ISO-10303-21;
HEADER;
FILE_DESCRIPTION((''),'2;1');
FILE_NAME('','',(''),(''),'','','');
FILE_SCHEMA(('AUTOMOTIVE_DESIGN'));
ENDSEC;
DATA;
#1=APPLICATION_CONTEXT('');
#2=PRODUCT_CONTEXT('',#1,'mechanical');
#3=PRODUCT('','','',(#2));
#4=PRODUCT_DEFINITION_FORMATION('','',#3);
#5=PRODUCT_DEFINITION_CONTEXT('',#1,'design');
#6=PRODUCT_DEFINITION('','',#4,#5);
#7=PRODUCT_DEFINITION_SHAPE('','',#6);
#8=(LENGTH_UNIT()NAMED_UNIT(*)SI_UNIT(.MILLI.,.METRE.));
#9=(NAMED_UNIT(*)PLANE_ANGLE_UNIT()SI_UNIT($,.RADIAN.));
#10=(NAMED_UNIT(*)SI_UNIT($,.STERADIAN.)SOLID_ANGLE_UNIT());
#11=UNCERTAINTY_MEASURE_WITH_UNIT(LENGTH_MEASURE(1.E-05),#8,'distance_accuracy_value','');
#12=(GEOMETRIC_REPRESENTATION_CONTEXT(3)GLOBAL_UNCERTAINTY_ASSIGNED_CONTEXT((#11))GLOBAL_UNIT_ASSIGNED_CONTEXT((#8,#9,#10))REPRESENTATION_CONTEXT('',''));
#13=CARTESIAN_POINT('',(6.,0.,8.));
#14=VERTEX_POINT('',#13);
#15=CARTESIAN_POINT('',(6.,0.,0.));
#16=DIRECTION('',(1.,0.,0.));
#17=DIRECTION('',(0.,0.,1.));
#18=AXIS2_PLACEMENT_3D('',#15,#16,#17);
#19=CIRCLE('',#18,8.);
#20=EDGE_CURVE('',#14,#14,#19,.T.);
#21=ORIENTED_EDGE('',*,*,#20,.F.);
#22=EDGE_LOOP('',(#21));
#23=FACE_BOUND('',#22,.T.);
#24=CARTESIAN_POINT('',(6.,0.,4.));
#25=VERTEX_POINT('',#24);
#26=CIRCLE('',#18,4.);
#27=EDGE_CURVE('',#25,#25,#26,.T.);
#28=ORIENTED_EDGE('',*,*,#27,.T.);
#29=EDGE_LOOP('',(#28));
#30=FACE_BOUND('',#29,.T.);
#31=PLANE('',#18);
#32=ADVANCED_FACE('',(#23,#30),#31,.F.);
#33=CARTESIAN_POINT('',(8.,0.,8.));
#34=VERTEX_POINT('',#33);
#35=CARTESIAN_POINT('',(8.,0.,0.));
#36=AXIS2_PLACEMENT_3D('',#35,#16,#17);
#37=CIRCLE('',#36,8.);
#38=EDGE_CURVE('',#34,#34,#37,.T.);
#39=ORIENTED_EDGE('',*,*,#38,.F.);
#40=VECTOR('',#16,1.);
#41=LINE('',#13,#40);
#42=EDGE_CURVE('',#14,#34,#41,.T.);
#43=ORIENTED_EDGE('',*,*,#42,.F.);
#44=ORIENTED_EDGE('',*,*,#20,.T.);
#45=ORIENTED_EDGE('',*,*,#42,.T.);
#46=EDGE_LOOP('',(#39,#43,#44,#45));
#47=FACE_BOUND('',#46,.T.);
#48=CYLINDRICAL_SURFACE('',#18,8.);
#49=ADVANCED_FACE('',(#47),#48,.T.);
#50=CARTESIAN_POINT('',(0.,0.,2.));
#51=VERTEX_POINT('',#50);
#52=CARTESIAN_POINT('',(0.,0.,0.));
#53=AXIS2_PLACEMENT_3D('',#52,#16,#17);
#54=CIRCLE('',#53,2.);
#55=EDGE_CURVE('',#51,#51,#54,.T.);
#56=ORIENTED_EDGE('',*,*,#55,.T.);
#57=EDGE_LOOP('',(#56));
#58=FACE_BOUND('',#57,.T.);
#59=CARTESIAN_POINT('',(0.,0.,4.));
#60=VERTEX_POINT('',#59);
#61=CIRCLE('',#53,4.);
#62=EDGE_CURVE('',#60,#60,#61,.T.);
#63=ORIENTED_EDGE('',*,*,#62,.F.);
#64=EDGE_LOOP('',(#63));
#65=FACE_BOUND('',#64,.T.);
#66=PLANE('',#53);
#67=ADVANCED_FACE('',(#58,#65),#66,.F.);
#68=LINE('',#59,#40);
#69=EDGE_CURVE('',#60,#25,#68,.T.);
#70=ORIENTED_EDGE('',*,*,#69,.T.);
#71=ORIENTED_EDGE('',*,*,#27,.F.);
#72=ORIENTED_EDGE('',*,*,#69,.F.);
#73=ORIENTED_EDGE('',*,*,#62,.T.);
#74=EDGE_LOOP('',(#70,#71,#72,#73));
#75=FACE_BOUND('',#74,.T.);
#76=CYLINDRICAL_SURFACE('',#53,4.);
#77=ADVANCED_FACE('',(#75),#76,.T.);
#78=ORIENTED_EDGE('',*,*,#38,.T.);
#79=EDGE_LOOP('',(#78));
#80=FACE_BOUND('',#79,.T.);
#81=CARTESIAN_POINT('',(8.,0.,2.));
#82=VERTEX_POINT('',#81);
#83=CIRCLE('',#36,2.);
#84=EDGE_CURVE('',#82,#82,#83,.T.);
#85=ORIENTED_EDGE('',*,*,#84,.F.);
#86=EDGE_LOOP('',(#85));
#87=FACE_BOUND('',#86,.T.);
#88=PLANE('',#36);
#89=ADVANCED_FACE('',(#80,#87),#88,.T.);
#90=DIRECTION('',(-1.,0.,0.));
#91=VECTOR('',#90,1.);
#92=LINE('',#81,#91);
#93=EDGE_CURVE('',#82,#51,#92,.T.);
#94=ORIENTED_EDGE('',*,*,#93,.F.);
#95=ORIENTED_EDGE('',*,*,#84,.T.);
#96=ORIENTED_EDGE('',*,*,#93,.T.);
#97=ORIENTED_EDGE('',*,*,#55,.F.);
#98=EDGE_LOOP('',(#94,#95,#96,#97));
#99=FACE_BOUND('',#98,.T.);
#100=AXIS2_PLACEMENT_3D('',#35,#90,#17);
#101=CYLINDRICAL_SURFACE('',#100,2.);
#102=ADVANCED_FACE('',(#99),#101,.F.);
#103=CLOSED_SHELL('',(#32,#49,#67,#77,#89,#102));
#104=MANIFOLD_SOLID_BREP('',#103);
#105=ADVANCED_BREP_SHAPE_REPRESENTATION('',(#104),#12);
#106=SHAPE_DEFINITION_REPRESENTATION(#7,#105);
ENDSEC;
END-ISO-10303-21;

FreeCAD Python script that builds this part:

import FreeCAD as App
import Part
import Sketcher
from FreeCAD import Vector


def add_polygon(sketch, points):
    """Adds a closed chain of lines whose ends are joined by coincident constraints."""
    first, n = sketch.GeometryCount, len(points)
    for a, b in zip(points, points[1:] + points[:1]):
        sketch.addGeometry(Part.LineSegment(App.Vector(*a, 0), App.Vector(*b, 0)), False)
    for i in range(n):
        sketch.addConstraint(Sketcher.Constraint("Coincident", first + i, 2, first + (i + 1) % n, 1))

doc = App.newDocument("Part")
params = doc.addObject("Spreadsheet::Sheet", "Params")
for row, (alias, value) in enumerate([
    ("sketch1_width", "8 mm"),
    ("sketch1_width2", "2 mm"),
    ("revolution_angle", "360 deg"),
], start=1):
    params.set(f"A{row}", alias)
    params.set(f"B{row}", "=" + value)
    params.setAlias(f"B{row}", alias)

body = doc.addObject("PartDesign::Body", "Body")

# Sketch on XZ plane
sketch1 = body.newObject("Sketcher::SketchObject", "Sketch")
sketch1.AttachmentSupport = (doc.getObject("XZ_Plane"), [""])
sketch1.MapMode = "FlatFace"
add_polygon(sketch1, [(0, -4), (0, -2), (8, -2), (8, -8), (6, -8), (6, -4)])  # lines 0-5
sketch1.addConstraint(Sketcher.Constraint("Vertical", 0))
sketch1.addConstraint(Sketcher.Constraint("Horizontal", 1))
sketch1.addConstraint(Sketcher.Constraint("Vertical", 2))
sketch1.addConstraint(Sketcher.Constraint("Horizontal", 3))
sketch1.addConstraint(Sketcher.Constraint("Vertical", 4))
sketch1.addConstraint(Sketcher.Constraint("Horizontal", 5))
sketch1.addConstraint(Sketcher.Constraint("PointOnObject", 0, 2, -2))
sketch1.addConstraint(Sketcher.Constraint("Equal", 3, 0))
sketch1.addConstraint(Sketcher.Constraint("Equal", 5, 2))
sketch1.addConstraint(Sketcher.Constraint("DistanceX", 1, 1, 1, 2, 8.0))
sketch1.addConstraint(Sketcher.Constraint("DistanceX", 3, 2, 3, 1, 2.0))
sketch1.addConstraint(Sketcher.Constraint("DistanceY", 0, 2, -1, 1, 2.0))
sketch1.setExpression("Constraints[15]", "Params.sketch1_width")
sketch1.setExpression("Constraints[16]", "Params.sketch1_width2")
revolution = body.newObject("PartDesign::Revolution", "Revolution")
revolution.Profile = sketch1
revolution.ReferenceAxis = (sketch1, ["H_Axis"])
revolution.setExpression("Angle", "Params.revolution_angle")

doc.recompute()
